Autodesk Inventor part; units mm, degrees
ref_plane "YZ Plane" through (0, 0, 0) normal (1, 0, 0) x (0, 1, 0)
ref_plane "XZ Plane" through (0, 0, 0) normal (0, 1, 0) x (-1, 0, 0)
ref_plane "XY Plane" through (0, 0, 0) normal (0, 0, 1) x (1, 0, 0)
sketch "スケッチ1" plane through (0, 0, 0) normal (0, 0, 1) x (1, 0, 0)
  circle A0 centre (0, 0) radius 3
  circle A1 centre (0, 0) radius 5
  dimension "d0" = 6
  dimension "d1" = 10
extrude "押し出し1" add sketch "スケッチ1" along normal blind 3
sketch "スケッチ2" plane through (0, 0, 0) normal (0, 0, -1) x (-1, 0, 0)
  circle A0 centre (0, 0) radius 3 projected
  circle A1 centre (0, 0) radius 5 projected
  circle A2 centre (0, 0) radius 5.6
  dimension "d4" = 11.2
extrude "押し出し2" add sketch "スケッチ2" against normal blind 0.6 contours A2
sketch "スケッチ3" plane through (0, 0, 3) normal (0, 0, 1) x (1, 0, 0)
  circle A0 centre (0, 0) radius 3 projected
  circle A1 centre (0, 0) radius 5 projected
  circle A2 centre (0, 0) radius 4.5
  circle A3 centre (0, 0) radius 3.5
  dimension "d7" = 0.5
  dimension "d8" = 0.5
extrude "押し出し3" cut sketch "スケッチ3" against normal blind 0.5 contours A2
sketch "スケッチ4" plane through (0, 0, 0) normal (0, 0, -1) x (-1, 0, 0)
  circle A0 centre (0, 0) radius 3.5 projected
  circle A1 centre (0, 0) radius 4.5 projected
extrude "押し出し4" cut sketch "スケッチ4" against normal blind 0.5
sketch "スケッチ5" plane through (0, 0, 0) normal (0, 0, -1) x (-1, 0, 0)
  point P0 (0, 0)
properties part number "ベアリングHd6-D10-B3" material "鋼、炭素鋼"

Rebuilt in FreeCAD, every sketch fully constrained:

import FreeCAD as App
import Part
import Sketcher
Q = App.Units.Quantity

doc = App.newDocument("Part")
params = doc.addObject("Spreadsheet::Sheet", "Params")
for row, (alias, value) in enumerate([
    ("sketch1_diameter", "10 mm"),
    ("sketch1_diameter2", "6 mm"),
    ("pad1_length", "3 mm"),
    ("sketch2_diameter", "11.2 mm"),
    ("sketch2_diameter2", "10 mm"),
    ("pad2_length", "0.6 mm"),
    ("sketch3_diameter", "9 mm"),
    ("sketch3_diameter2", "7 mm"),
    ("pocket1_length", "0.5 mm"),
    ("sketch4_diameter", "9 mm"),
    ("sketch4_diameter2", "7 mm"),
    ("pocket2_length", "0.5 mm"),
], start=1):
    params.set(f"A{row}", alias)
    params.set(f"B{row}", "=" + value)
    params.setAlias(f"B{row}", alias)

body = doc.addObject("PartDesign::Body", "Body")

# Sketch on XY plane
sketch1 = doc.addObject("Sketcher::SketchObject", "Sketch")
body.addObject(sketch1)
sketch1.AttachmentSupport = (doc.XY_Plane, [""])
sketch1.MapMode = "FlatFace"
sketch1.addGeometry([
    Part.Circle(App.Vector(0, 0, 0), App.Vector(0, 0, 1), 5),
    Part.Circle(App.Vector(0, 0, 0), App.Vector(0, 0, 1), 3),
], False)
sketch1.addConstraint([
    Sketcher.Constraint("Coincident", 0, 3, -1, 1),
    Sketcher.Constraint("Coincident", 1, 3, -1, 1),
    Sketcher.Constraint("Diameter", 0, Q("10 mm")),
    Sketcher.Constraint("Diameter", 1, Q("6 mm")),
])
sketch1.setExpression("Constraints[2]", "Params.sketch1_diameter")
sketch1.setExpression("Constraints[3]", "Params.sketch1_diameter2")
pad1 = doc.addObject("PartDesign::Pad", "Pad")
body.addObject(pad1)
pad1.Profile = sketch1
pad1.setExpression("Length", "Params.pad1_length")

# Sketch on XY plane
sketch2 = doc.addObject("Sketcher::SketchObject", "Sketch001")
body.addObject(sketch2)
sketch2.AttachmentSupport = (doc.XY_Plane, [""])
sketch2.MapMode = "FlatFace"
sketch2.addGeometry([
    Part.Circle(App.Vector(0, 0, 0), App.Vector(0, 0, 1), 5.6),
    Part.Circle(App.Vector(0, 0, 0), App.Vector(0, 0, 1), 5),
], False)
sketch2.addConstraint([
    Sketcher.Constraint("Coincident", 0, 3, -1, 1),
    Sketcher.Constraint("Coincident", 1, 3, -1, 1),
    Sketcher.Constraint("Diameter", 0, Q("11.2 mm")),
    Sketcher.Constraint("Diameter", 1, Q("10 mm")),
])
sketch2.setExpression("Constraints[2]", "Params.sketch2_diameter")
sketch2.setExpression("Constraints[3]", "Params.sketch2_diameter2")
pad2 = doc.addObject("PartDesign::Pad", "Pad001")
body.addObject(pad2)
pad2.Profile = sketch2
pad2.setExpression("Length", "Params.pad2_length")

# Sketch on XY plane
sketch3 = doc.addObject("Sketcher::SketchObject", "Sketch002")
body.addObject(sketch3)
sketch3.AttachmentSupport = (doc.XY_Plane, [""])
sketch3.MapMode = "FlatFace"
sketch3.AttachmentOffset = App.Placement(App.Vector(0, 0, 3), App.Rotation())
sketch3.addGeometry([
    Part.Circle(App.Vector(0, 0, 0), App.Vector(0, 0, 1), 4.5),
    Part.Circle(App.Vector(0, 0, 0), App.Vector(0, 0, 1), 3.5),
], False)
sketch3.addConstraint([
    Sketcher.Constraint("Coincident", 0, 3, -1, 1),
    Sketcher.Constraint("Coincident", 1, 3, -1, 1),
    Sketcher.Constraint("Diameter", 0, Q("9 mm")),
    Sketcher.Constraint("Diameter", 1, Q("7 mm")),
])
sketch3.setExpression("Constraints[2]", "Params.sketch3_diameter")
sketch3.setExpression("Constraints[3]", "Params.sketch3_diameter2")
pocket1 = doc.addObject("PartDesign::Pocket", "Pocket")
body.addObject(pocket1)
pocket1.Profile = sketch3
pocket1.setExpression("Length", "Params.pocket1_length")

# Sketch on XY plane
sketch4 = doc.addObject("Sketcher::SketchObject", "Sketch003")
body.addObject(sketch4)
sketch4.AttachmentSupport = (doc.XY_Plane, [""])
sketch4.MapMode = "FlatFace"
sketch4.addGeometry([
    Part.Circle(App.Vector(0, 0, 0), App.Vector(0, 0, 1), 4.5),
    Part.Circle(App.Vector(0, 0, 0), App.Vector(0, 0, 1), 3.5),
], False)
sketch4.addConstraint([
    Sketcher.Constraint("Coincident", 0, 3, -1, 1),
    Sketcher.Constraint("Coincident", 1, 3, -1, 1),
    Sketcher.Constraint("Diameter", 0, Q("9 mm")),
    Sketcher.Constraint("Diameter", 1, Q("7 mm")),
])
sketch4.setExpression("Constraints[2]", "Params.sketch4_diameter")
sketch4.setExpression("Constraints[3]", "Params.sketch4_diameter2")
pocket2 = doc.addObject("PartDesign::Pocket", "Pocket001")
body.addObject(pocket2)
pocket2.Profile = sketch4
pocket2.setExpression("Length", "Params.pocket2_length")
pocket2.Reversed = True

doc.recompute()
